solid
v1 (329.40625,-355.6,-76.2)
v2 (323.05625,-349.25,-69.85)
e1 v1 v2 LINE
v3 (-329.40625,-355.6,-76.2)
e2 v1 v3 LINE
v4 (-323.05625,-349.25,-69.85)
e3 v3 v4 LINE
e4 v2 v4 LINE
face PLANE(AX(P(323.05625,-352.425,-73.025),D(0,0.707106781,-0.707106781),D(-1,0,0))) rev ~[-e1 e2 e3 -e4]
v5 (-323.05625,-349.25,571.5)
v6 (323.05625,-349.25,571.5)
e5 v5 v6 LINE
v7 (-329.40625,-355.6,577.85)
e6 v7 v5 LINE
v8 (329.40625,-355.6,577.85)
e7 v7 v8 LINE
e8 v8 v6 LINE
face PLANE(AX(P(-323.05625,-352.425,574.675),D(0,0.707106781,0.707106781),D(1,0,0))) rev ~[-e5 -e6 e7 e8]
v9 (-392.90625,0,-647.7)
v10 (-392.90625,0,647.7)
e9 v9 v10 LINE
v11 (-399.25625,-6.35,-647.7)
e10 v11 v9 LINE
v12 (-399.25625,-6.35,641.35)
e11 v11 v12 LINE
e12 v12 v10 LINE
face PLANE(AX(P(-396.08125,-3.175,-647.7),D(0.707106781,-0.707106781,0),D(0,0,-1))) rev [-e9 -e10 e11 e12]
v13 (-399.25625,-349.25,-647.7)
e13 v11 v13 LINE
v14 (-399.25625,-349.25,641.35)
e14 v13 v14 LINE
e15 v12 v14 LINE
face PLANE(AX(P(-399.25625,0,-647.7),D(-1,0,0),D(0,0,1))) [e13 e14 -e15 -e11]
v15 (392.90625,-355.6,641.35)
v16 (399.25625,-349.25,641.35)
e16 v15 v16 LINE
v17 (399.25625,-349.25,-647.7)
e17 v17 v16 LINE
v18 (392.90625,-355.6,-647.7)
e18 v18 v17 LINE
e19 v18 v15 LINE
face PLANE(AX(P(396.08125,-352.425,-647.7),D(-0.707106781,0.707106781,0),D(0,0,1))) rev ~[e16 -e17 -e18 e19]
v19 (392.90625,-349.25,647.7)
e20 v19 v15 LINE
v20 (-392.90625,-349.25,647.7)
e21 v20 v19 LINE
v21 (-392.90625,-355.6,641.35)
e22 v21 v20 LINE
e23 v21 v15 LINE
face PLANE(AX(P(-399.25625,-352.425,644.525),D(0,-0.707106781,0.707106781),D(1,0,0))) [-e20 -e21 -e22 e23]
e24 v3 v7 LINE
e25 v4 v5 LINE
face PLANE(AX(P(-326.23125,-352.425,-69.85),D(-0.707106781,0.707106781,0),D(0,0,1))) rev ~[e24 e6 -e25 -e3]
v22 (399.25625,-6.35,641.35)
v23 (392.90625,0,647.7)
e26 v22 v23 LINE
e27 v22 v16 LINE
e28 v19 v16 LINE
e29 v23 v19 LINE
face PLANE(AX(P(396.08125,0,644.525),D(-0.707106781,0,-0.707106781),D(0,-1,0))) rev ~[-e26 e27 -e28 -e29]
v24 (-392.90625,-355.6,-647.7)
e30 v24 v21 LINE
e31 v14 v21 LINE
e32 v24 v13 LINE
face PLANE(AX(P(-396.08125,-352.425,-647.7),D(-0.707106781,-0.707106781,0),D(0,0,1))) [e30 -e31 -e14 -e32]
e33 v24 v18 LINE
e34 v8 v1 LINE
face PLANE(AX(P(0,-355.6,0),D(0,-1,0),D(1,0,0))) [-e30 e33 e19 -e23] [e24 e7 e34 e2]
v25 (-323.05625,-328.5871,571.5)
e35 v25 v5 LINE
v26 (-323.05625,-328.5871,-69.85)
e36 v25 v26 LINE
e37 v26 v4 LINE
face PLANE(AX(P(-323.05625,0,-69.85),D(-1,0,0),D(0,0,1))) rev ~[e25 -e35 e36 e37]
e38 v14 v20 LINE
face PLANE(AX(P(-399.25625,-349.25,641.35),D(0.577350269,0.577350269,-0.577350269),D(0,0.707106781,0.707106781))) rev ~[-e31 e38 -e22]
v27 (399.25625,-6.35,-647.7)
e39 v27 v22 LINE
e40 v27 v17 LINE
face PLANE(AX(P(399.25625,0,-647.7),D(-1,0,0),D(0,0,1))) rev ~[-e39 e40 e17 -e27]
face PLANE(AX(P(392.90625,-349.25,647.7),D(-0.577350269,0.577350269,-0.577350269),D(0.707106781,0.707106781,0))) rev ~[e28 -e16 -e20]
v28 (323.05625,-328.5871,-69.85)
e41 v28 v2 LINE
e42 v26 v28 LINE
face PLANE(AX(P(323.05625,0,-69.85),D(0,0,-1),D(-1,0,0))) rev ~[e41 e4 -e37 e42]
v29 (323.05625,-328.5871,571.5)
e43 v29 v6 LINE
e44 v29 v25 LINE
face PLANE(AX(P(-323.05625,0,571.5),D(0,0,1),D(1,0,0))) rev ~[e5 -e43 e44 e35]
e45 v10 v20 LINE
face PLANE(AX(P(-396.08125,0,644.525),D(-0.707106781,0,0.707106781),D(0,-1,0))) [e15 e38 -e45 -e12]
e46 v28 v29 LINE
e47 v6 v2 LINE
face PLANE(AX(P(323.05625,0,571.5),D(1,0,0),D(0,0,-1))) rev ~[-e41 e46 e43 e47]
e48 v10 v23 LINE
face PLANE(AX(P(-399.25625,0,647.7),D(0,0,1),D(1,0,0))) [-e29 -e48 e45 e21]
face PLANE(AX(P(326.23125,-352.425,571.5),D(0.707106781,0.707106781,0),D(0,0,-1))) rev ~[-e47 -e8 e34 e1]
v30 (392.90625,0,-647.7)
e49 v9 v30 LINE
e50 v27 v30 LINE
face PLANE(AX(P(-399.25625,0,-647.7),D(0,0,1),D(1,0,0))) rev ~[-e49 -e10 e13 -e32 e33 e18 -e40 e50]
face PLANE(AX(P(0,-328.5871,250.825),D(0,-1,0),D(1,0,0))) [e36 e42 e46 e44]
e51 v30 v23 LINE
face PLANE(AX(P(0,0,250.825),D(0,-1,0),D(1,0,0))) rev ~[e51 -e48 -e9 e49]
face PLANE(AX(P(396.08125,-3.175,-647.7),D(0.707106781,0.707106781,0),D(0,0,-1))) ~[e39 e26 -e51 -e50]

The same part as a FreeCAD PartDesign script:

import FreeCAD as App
import Part
import Sketcher

V = App.Vector
Q = App.Units.Quantity


def edges_at(feature, points):
    """Names of the edges that pass closest to the given points."""
    edges = feature.Shape.Edges
    near = lambda p: min(range(len(edges)), key=lambda i: edges[i].distToShape(Part.Vertex(*p))[0])
    return sorted({f"Edge{near(p) + 1}" for p in points})


def add_polygon(sketch, points):
    """Adds a closed chain of lines whose ends are joined by coincident constraints."""
    first, n = sketch.GeometryCount, len(points)
    for a, b in zip(points, points[1:] + points[:1]):
        sketch.addGeometry(Part.LineSegment(App.Vector(*a, 0), App.Vector(*b, 0)), False)
    for i in range(n):
        sketch.addConstraint(Sketcher.Constraint("Coincident", first + i, 2, first + (i + 1) % n, 1))

doc = App.newDocument("Part")
params = doc.addObject("Spreadsheet::Sheet", "Params")
for row, (alias, value) in enumerate([
    ("sketch1_height", "51 in"),
    ("sketch1_height2", "25.25 in"),
    ("sketch1_width", "31.4375 in"),
    ("pad1_length", "14 in"),
    ("sketch2_height", "25.25 in"),
    ("sketch2_width", "25.4375 in"),
    ("pad2_length", "12.9365 in"),
    ("chamfer_size", "0.25 in"),
    ("chamfer2_size", "0.25 in"),
], start=1):
    params.set(f"A{row}", alias)
    params.set(f"B{row}", "=" + value)
    params.setAlias(f"B{row}", alias)

body = doc.addObject("PartDesign::Body", "Body")

# Sketch on XZ plane
sketch1 = body.newObject("Sketcher::SketchObject", "Sketch")
sketch1.AttachmentSupport = (doc.getObject("XZ_Plane"), [""])
sketch1.MapMode = "FlatFace"
add_polygon(sketch1, [(-399.25625, 647.7), (-399.25625, -647.7), (399.25625, -647.7), (399.25625, 647.7)])  # lines 0-3
add_polygon(sketch1, [(-323.05625, 571.5), (323.05625, 571.5), (323.05625, -69.85), (-323.05625, -69.85)])  # lines 4-7
sketch1.addConstraint(Sketcher.Constraint("Vertical", 0))
sketch1.addConstraint(Sketcher.Constraint("Horizontal", 1))
sketch1.addConstraint(Sketcher.Constraint("Vertical", 2))
sketch1.addConstraint(Sketcher.Constraint("Horizontal", 3))
sketch1.addConstraint(Sketcher.Constraint("Horizontal", 4))
sketch1.addConstraint(Sketcher.Constraint("Vertical", 5))
sketch1.addConstraint(Sketcher.Constraint("Horizontal", 6))
sketch1.addConstraint(Sketcher.Constraint("Vertical", 7))
sketch1.addConstraint(Sketcher.Constraint("Symmetric", 0, 2, 2, 2, -1, 1))
sketch1.addConstraint(Sketcher.Constraint("DistanceY", 0, 2, 0, 1, Q("51 in")))
sketch1.addConstraint(Sketcher.Constraint("DistanceX", 4, 2, 2, 2, Q("3 in")))
sketch1.addConstraint(Sketcher.Constraint("DistanceY", 4, 2, 2, 2, Q("3 in")))
sketch1.addConstraint(Sketcher.Constraint("DistanceX", 0, 2, 6, 2, Q("3 in")))
sketch1.addConstraint(Sketcher.Constraint("DistanceY", 5, 2, 5, 1, Q("25.25 in")))
sketch1.addConstraint(Sketcher.Constraint("DistanceX", 1, 1, 1, 2, Q("31.4375 in")))
sketch1.setExpression("Constraints[17]", "Params.sketch1_height")
sketch1.setExpression("Constraints[21]", "Params.sketch1_height2")
sketch1.setExpression("Constraints[22]", "Params.sketch1_width")
pad1 = body.newObject("PartDesign::Pad", "Pad")
pad1.Profile = sketch1
pad1.setExpression("Length", "Params.pad1_length")

# Sketch on XZ plane
sketch2 = body.newObject("Sketcher::SketchObject", "Sketch001")
sketch2.AttachmentSupport = (doc.getObject("XZ_Plane"), [""])
sketch2.MapMode = "FlatFace"
add_polygon(sketch2, [(323.05625, -69.85), (323.05625, 571.5), (-323.05625, 571.5), (-323.05625, -69.85)])  # lines 0-3
sketch2.addConstraint(Sketcher.Constraint("Vertical", 0))
sketch2.addConstraint(Sketcher.Constraint("Horizontal", 1))
sketch2.addConstraint(Sketcher.Constraint("Vertical", 2))
sketch2.addConstraint(Sketcher.Constraint("Horizontal", 3))
sketch2.addConstraint(Sketcher.Constraint("DistanceY", 0, 1, 0, 2, Q("25.25 in")))
sketch2.addConstraint(Sketcher.Constraint("DistanceY", -1, 1, 0, 2, Q("22.5 in")))
sketch2.addConstraint(Sketcher.Constraint("DistanceX", 1, 2, 1, 1, Q("25.4375 in")))
sketch2.addConstraint(Sketcher.Constraint("DistanceX", -1, 1, 0, 2, Q("12.71875 in")))
sketch2.setExpression("Constraints[8]", "Params.sketch2_height")
sketch2.setExpression("Constraints[10]", "Params.sketch2_width")
pad2 = body.newObject("PartDesign::Pad", "Pad001")
pad2.Profile = sketch2
pad2.setExpression("Length", "Params.pad2_length")
doc.recompute()

chamfer = body.newObject("PartDesign::Chamfer", "Chamfer")
chamfer.Base = (pad2, edges_at(pad2, [
    (0, -355.6, -69.85),
    (-323.056, -355.6, 250.825),
    (0, -355.6, 571.5),
    (323.056, -355.6, 250.825),
]))
chamfer.setExpression("Size", "Params.chamfer_size")
doc.recompute()

chamfer2 = body.newObject("PartDesign::Chamfer", "Chamfer001")
chamfer2.Base = (chamfer, edges_at(chamfer, [
    (399.256, -355.6, 0),
    (0, -355.6, 647.7),
    (-399.256, -355.6, 0),
    (-399.256, -177.8, 647.7),
    (399.256, -177.8, 647.7),
    (-399.256, 0, 0),
    (399.256, 0, 0),
]))
chamfer2.setExpression("Size", "Params.chamfer2_size")

doc.recompute()
